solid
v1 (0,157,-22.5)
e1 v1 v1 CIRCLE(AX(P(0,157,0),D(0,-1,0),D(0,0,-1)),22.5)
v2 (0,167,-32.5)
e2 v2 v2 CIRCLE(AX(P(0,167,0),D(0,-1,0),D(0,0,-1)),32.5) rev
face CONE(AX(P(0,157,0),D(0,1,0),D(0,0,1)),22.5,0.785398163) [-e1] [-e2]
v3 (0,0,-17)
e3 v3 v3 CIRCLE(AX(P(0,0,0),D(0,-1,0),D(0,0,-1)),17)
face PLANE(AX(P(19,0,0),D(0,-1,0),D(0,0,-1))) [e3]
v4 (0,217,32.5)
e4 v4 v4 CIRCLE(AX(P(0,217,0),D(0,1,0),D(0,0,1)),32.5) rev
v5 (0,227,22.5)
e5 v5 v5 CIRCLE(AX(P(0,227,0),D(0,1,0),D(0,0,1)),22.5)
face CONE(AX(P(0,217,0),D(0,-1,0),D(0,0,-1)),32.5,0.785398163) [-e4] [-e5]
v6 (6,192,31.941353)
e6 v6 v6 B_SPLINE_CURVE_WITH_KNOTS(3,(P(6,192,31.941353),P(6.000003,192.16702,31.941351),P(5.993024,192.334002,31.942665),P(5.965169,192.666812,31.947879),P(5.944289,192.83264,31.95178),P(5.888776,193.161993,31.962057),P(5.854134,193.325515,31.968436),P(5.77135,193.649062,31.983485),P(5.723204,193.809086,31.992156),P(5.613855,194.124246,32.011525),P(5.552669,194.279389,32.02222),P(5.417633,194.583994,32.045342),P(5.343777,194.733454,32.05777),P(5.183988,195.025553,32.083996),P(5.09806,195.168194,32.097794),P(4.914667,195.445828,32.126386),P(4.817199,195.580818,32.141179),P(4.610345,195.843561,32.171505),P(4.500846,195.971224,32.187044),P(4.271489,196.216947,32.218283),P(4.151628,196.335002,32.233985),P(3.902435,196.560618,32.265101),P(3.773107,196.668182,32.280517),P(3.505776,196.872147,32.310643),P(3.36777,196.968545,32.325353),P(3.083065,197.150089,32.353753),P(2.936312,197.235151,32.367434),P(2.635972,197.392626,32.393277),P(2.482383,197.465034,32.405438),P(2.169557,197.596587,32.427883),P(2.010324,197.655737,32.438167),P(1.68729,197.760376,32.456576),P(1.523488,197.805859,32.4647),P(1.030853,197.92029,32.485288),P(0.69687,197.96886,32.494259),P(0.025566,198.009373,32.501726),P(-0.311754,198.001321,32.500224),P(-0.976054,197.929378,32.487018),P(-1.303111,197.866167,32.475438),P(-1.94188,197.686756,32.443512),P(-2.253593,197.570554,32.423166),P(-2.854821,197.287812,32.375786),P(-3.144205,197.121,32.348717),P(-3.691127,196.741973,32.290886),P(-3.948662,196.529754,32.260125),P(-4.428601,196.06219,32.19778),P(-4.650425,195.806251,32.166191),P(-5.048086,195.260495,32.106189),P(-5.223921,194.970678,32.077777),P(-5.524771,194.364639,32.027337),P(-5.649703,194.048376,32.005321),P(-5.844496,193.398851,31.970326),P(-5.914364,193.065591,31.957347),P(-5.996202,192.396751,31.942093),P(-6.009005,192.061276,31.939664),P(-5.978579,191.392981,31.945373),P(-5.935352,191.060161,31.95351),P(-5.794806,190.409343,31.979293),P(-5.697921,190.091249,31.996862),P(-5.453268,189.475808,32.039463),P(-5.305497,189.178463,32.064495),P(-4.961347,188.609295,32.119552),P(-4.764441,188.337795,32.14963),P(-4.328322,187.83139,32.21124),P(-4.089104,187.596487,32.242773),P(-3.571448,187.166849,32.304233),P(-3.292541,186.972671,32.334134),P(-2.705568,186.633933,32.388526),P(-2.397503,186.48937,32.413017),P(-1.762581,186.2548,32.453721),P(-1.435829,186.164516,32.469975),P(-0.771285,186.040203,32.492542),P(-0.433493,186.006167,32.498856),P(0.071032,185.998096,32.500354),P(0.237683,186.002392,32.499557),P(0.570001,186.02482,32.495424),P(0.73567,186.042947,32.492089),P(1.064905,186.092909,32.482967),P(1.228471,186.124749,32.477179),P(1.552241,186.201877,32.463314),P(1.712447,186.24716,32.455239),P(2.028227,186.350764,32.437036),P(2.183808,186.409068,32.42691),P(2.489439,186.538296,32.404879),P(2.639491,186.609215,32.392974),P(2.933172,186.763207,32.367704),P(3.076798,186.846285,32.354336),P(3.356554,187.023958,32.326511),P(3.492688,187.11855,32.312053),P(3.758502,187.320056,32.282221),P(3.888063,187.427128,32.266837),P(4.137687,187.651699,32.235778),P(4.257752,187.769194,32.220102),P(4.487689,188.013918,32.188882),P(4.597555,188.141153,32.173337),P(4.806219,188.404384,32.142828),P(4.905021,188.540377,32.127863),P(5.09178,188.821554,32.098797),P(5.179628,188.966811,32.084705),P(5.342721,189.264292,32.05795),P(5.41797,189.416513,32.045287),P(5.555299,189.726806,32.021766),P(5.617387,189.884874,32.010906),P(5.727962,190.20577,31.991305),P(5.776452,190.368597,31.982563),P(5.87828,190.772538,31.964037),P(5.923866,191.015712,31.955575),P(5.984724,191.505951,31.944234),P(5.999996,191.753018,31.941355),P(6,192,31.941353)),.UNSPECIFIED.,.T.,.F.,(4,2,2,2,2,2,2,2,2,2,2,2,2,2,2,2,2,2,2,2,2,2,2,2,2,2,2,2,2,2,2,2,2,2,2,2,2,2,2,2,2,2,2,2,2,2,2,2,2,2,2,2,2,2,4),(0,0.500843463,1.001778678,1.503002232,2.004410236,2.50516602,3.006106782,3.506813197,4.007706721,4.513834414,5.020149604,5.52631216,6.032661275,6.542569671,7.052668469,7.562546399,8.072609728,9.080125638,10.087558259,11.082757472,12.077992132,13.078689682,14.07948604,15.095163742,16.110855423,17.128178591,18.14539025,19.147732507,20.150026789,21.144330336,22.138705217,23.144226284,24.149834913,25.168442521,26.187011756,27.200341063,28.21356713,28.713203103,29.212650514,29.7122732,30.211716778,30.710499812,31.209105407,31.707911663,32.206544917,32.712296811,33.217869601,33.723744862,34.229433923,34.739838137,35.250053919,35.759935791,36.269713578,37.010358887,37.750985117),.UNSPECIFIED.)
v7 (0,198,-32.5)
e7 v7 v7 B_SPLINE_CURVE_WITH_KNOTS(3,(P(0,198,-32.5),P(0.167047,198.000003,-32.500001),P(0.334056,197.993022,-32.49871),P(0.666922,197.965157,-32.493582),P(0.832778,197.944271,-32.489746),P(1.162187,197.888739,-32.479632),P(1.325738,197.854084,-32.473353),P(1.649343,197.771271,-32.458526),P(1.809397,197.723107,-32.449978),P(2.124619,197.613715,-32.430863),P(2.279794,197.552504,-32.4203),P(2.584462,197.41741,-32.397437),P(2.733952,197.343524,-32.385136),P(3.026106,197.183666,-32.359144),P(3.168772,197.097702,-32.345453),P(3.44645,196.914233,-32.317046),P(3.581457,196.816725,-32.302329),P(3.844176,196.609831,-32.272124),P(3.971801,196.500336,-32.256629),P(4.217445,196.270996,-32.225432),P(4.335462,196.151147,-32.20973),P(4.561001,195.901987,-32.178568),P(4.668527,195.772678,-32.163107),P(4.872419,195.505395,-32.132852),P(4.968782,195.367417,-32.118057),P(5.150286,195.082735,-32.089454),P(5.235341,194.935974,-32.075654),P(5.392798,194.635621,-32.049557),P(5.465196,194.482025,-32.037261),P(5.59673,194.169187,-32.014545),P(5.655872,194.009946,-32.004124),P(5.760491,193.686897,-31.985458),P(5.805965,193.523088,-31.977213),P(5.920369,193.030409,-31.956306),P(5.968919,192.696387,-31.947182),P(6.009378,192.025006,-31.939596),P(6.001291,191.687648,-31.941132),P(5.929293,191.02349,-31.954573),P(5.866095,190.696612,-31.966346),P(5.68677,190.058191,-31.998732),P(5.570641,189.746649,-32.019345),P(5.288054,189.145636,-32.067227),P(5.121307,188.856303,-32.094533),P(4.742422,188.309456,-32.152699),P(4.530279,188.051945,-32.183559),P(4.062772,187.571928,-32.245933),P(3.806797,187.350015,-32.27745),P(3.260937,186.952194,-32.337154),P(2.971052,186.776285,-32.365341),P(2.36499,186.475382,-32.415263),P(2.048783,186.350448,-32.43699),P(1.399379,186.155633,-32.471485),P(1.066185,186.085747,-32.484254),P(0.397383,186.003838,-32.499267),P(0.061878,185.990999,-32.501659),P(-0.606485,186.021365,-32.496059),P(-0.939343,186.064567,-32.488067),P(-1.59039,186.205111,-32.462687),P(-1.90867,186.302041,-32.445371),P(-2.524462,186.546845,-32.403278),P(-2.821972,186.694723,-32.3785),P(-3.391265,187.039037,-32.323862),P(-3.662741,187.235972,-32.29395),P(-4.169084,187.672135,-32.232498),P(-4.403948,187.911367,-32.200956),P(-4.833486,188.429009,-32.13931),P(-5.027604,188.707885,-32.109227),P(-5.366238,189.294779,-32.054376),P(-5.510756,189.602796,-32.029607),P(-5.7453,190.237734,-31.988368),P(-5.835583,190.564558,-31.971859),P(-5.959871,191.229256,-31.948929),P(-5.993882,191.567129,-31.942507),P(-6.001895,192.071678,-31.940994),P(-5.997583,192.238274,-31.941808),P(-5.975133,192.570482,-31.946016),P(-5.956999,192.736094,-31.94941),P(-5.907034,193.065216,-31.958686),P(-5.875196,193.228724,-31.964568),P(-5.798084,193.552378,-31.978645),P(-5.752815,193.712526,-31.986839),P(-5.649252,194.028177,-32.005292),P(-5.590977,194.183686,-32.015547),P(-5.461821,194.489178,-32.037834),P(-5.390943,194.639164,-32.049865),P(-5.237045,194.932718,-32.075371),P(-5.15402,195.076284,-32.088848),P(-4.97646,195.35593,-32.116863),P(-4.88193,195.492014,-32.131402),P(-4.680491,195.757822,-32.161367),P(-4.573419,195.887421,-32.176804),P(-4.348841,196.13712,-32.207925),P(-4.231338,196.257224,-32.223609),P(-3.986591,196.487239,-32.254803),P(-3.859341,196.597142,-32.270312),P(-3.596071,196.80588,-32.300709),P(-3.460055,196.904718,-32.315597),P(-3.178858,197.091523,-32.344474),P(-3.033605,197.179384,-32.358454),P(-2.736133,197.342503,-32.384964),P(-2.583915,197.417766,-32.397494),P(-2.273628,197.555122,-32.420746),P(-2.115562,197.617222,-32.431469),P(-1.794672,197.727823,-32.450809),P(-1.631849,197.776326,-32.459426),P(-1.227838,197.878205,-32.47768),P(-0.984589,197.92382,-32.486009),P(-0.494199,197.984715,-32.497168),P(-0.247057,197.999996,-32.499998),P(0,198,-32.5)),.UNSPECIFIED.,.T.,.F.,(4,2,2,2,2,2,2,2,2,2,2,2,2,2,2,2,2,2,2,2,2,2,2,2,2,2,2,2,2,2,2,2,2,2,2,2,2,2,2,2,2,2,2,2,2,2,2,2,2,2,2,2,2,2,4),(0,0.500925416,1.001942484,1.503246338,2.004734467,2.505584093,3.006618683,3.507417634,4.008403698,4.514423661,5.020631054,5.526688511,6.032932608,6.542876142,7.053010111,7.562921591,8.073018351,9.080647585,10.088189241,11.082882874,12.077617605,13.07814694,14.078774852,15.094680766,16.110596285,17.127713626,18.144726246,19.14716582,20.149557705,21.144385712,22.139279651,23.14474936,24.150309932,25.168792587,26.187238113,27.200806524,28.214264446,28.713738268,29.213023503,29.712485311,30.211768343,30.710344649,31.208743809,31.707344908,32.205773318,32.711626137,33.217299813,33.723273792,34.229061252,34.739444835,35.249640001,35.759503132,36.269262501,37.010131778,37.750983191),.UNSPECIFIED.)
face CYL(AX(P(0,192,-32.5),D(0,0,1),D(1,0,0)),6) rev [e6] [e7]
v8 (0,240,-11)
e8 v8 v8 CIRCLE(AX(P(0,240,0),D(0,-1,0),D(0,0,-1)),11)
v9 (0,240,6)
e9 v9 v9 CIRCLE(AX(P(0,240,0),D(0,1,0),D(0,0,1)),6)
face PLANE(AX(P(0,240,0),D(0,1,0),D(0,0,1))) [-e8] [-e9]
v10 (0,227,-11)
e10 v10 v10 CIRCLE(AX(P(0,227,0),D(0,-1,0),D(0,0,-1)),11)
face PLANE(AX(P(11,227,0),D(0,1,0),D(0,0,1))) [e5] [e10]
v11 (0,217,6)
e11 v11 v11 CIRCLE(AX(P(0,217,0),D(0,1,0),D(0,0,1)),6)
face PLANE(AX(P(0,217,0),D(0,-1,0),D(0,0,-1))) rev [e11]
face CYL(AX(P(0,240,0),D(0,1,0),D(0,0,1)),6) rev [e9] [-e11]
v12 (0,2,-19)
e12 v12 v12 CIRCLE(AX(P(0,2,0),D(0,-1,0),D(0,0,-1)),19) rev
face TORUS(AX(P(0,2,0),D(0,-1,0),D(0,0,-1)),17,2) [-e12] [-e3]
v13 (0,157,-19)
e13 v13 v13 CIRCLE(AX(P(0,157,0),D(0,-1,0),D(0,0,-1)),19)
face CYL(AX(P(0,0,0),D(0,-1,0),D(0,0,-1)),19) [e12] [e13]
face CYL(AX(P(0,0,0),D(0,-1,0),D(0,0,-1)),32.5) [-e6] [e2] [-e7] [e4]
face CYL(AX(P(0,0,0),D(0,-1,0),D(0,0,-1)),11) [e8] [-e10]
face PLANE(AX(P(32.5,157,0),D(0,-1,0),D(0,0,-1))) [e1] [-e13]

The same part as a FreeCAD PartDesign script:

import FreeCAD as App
import Part
import Sketcher
from FreeCAD import Vector


def edges_at(feature, points):
    """Names of the edges that pass closest to the given points."""
    edges = feature.Shape.Edges
    near = lambda p: min(range(len(edges)), key=lambda i: edges[i].distToShape(Part.Vertex(*p))[0])
    return sorted({f"Edge{near(p) + 1}" for p in points})

doc = App.newDocument("Part")
params = doc.addObject("Spreadsheet::Sheet", "Params")
for row, (alias, value) in enumerate([
    ("sketch1_width", "19 mm"),
    ("sketch1_width2", "11 mm"),
    ("sketch1_height", "240 mm"),
    ("sketch1_height2", "157 mm"),
    ("sketch1_height3", "70 mm"),
    ("revolution_angle", "360 deg"),
    ("chamfer_size", "10 mm"),
    ("fillet_radius", "2 mm"),
    ("sketch2_diameter", "12 mm"),
    ("hole_diameter", "12 mm"),
    ("hole_depth", "23 mm"),
    ("sketch3_diameter", "12 mm"),
], start=1):
    params.set(f"A{row}", alias)
    params.set(f"B{row}", "=" + value)
    params.setAlias(f"B{row}", alias)

body = doc.addObject("PartDesign::Body", "Body")

# Sketch on XY plane
sketch1 = body.newObject("Sketcher::SketchObject", "Sketch")
sketch1.AttachmentSupport = (doc.getObject("XY_Plane"), [""])
sketch1.MapMode = "FlatFace"
sketch1.addGeometry(Part.LineSegment(Vector(0, 240, 0), Vector(0, 0, 0)), False)
sketch1.addGeometry(Part.LineSegment(Vector(0, 0, 0), Vector(19, 0, 0)), False)
sketch1.addGeometry(Part.LineSegment(Vector(19, 0, 0), Vector(19, 157, 0)), False)
sketch1.addGeometry(Part.LineSegment(Vector(19, 157, 0), Vector(32, 157, 0)), False)
sketch1.addGeometry(Part.LineSegment(Vector(32, 157, 0), Vector(32, 227, 0)), False)
sketch1.addGeometry(Part.LineSegment(Vector(32, 227, 0), Vector(11, 227, 0)), False)
sketch1.addGeometry(Part.LineSegment(Vector(11, 227, 0), Vector(11, 240, 0)), False)
sketch1.addGeometry(Part.LineSegment(Vector(11, 240, 0), Vector(0, 240, 0)), False)
sketch1.addConstraint(Sketcher.Constraint("Coincident", 0, 2, 1, 1))
sketch1.addConstraint(Sketcher.Constraint("Coincident", 1, 2, 2, 1))
sketch1.addConstraint(Sketcher.Constraint("Coincident", 2, 2, 3, 1))
sketch1.addConstraint(Sketcher.Constraint("Coincident", 3, 2, 4, 1))
sketch1.addConstraint(Sketcher.Constraint("Coincident", 4, 2, 5, 1))
sketch1.addConstraint(Sketcher.Constraint("Coincident", 5, 2, 6, 1))
sketch1.addConstraint(Sketcher.Constraint("Coincident", 6, 2, 7, 1))
sketch1.addConstraint(Sketcher.Constraint("Coincident", 7, 2, 0, 1))
sketch1.addConstraint(Sketcher.Constraint("Vertical", 0))
sketch1.addConstraint(Sketcher.Constraint("Horizontal", 1))
sketch1.addConstraint(Sketcher.Constraint("Vertical", 2))
sketch1.addConstraint(Sketcher.Constraint("Horizontal", 3))
sketch1.addConstraint(Sketcher.Constraint("Vertical", 4))
sketch1.addConstraint(Sketcher.Constraint("Horizontal", 5))
sketch1.addConstraint(Sketcher.Constraint("Vertical", 6))
sketch1.addConstraint(Sketcher.Constraint("Horizontal", 7))
sketch1.addConstraint(Sketcher.Constraint("Coincident", 0, 2, -1, 1))
sketch1.addConstraint(Sketcher.Constraint("DistanceX", 1, 1, 1, 2, 19.0))
sketch1.addConstraint(Sketcher.Constraint("DistanceX", 7, 2, 7, 1, 11.0))
sketch1.addConstraint(Sketcher.Constraint("DistanceY", 0, 2, 0, 1, 240.0))
sketch1.addConstraint(Sketcher.Constraint("DistanceY", 2, 1, 2, 2, 157.0))
sketch1.addConstraint(Sketcher.Constraint("DistanceY", 4, 1, 4, 2, 70.0))
sketch1.addConstraint(Sketcher.Constraint("DistanceX", 3, 1, 3, 2, 13.5))
sketch1.setExpression("Constraints[17]", "Params.sketch1_width")
sketch1.setExpression("Constraints[18]", "Params.sketch1_width2")
sketch1.setExpression("Constraints[19]", "Params.sketch1_height")
sketch1.setExpression("Constraints[20]", "Params.sketch1_height2")
sketch1.setExpression("Constraints[21]", "Params.sketch1_height3")
revolution = body.newObject("PartDesign::Revolution", "Revolution")
revolution.Profile = sketch1
revolution.ReferenceAxis = (sketch1, ["V_Axis"])
revolution.setExpression("Angle", "Params.revolution_angle")
doc.recompute()

chamfer = body.newObject("PartDesign::Chamfer", "Chamfer")
chamfer.Base = (revolution, edges_at(revolution, [(0, 157, 32.5), (0, 227, 32.5)]))
chamfer.setExpression("Size", "Params.chamfer_size")
doc.recompute()

fillet = body.newObject("PartDesign::Fillet", "Fillet")
fillet.Base = (chamfer, edges_at(chamfer, [(0, 0, 19)]))
fillet.setExpression("Radius", "Params.fillet_radius")

# Sketch on XZ plane
sketch2 = body.newObject("Sketcher::SketchObject", "Sketch001")
sketch2.AttachmentSupport = (doc.getObject("XZ_Plane"), [""])
sketch2.MapMode = "FlatFace"
sketch2.AttachmentOffset = App.Placement(Vector(0, 0, -240), App.Rotation())
sketch2.addGeometry(Part.Circle(Vector(0, 0, 0), Vector(0, 0, 1), 6), False)
sketch2.addConstraint(Sketcher.Constraint("Coincident", 0, 3, -1, 1))
sketch2.addConstraint(Sketcher.Constraint("Diameter", 0, 12.0))
sketch2.setExpression("Constraints[1]", "Params.sketch2_diameter")
doc.recompute()
hole = body.newObject("PartDesign::Hole", "Hole")
hole.Profile = sketch2
hole.ThreadType = "None"
hole.setExpression("Diameter", "Params.hole_diameter")
hole.DepthType = "Dimension"
hole.setExpression("Depth", "Params.hole_depth")
hole.DrillPoint = "Flat"
hole.Reversed = True

# Sketch on XY plane
sketch3 = body.newObject("Sketcher::SketchObject", "Sketch002")
sketch3.AttachmentSupport = (doc.getObject("XY_Plane"), [""])
sketch3.MapMode = "FlatFace"
sketch3.addGeometry(Part.Circle(Vector(0, 192, 0), Vector(0, 0, 1), 6), False)
sketch3.addConstraint(Sketcher.Constraint("PointOnObject", 0, 3, -2))
sketch3.addConstraint(Sketcher.Constraint("Diameter", 0, 12.0))
sketch3.addConstraint(Sketcher.Constraint("DistanceY", -1, 1, 0, 3, 192.0))
sketch3.setExpression("Constraints[1]", "Params.sketch3_diameter")
pocket1 = body.newObject("PartDesign::Pocket", "Pocket")
pocket1.Profile = sketch3
pocket1.Type = "ThroughAll"
pocket1.Midplane = True

doc.recompute()
